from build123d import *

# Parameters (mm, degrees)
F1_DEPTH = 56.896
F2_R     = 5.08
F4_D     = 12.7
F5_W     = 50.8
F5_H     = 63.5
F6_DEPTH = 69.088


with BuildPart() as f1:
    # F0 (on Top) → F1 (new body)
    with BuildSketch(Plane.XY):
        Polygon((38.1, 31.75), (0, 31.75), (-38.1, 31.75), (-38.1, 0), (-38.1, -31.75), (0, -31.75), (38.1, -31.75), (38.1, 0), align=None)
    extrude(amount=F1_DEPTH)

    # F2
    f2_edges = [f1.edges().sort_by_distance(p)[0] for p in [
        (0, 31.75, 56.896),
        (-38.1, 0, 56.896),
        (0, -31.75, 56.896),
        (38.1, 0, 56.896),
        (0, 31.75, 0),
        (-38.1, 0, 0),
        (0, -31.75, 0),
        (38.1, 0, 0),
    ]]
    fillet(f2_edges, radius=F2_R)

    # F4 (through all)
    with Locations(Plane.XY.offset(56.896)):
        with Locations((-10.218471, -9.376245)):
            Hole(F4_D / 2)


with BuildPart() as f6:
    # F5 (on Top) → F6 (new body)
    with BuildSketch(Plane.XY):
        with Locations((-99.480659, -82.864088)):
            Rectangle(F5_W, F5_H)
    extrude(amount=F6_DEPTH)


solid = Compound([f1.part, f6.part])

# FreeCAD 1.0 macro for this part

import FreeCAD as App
import Part
import Sketcher

V = App.Vector
Q = App.Units.Quantity


def edges_at(feature, points):
    """Names of the edges that pass closest to the given points."""
    edges = feature.Shape.Edges
    near = lambda p: min(range(len(edges)), key=lambda i: edges[i].distToShape(Part.Vertex(*p))[0])
    return sorted({f"Edge{near(p) + 1}" for p in points})

doc = App.newDocument("Part")
body = doc.addObject("PartDesign::Body", "Body")

sketch1 = body.newObject("Sketcher::SketchObject", "Sketch")
sketch1.AttachmentSupport = (doc.getObject("XY_Plane"), [""])
sketch1.MapMode = "FlatFace"
sketch1.addGeometry(Part.LineSegment(V(38, 32, 0), V(-38, 32, 0)), False)
sketch1.addGeometry(Part.LineSegment(V(-38, 32, 0), V(-38, -32, 0)), False)
sketch1.addGeometry(Part.LineSegment(V(-38, -32, 0), V(38, -32, 0)), False)
sketch1.addGeometry(Part.LineSegment(V(38, -32, 0), V(38, 32, 0)), False)
sketch1.addConstraint(Sketcher.Constraint("Coincident", 0, 2, 1, 1))
sketch1.addConstraint(Sketcher.Constraint("Coincident", 1, 2, 2, 1))
sketch1.addConstraint(Sketcher.Constraint("Coincident", 2, 2, 3, 1))
sketch1.addConstraint(Sketcher.Constraint("Coincident", 3, 2, 0, 1))
sketch1.addConstraint(Sketcher.Constraint("Horizontal", 0))
sketch1.addConstraint(Sketcher.Constraint("Vertical", 1))
sketch1.addConstraint(Sketcher.Constraint("Horizontal", 2))
sketch1.addConstraint(Sketcher.Constraint("Vertical", 3))
sketch1.addConstraint(Sketcher.Constraint("Symmetric", 0, 2, 2, 2, -1, 1))
sketch1.addConstraint(Sketcher.Constraint("DistanceX", 0, 2, 0, 1, Q("3 in")))
sketch1.addConstraint(Sketcher.Constraint("DistanceY", 1, 2, 1, 1, Q("2.5 in")))
pad1 = body.newObject("PartDesign::Pad", "Pad")
pad1.Profile = sketch1
pad1.Length = Q("2.24 in")
doc.recompute()

fillet = body.newObject("PartDesign::Fillet", "Fillet")
fillet.Base = (pad1, edges_at(pad1, [
    (0, 31.75, 56.896),
    (-38.1, 0, 56.896),
    (0, -31.75, 56.896),
    (38.1, 0, 56.896),
    (0, 31.75, 0),
    (-38.1, 0, 0),
    (0, -31.75, 0),
    (38.1, 0, 0),
]))
fillet.Radius = Q("0.2 in")

sketch2 = body.newObject("Sketcher::SketchObject", "Sketch001")
sketch2.AttachmentSupport = (doc.getObject("XY_Plane"), [""])
sketch2.MapMode = "FlatFace"
sketch2.AttachmentOffset = App.Placement(V(0, 0, 2.24 * 25.4), App.Rotation())
sketch2.addGeometry(Part.Circle(V(-10, -9, 0), V(0, 0, 1), 6), False)
sketch2.addConstraint(Sketcher.Constraint("Diameter", 0, Q("0.5 in")))
sketch2.addConstraint(Sketcher.Constraint("DistanceX", 0, 3, -1, 1, Q("10.218471 mm")))
sketch2.addConstraint(Sketcher.Constraint("DistanceY", 0, 3, -1, 1, Q("9.376245 mm")))
doc.recompute()
hole = body.newObject("PartDesign::Hole", "Hole")
hole.Profile = sketch2
hole.ThreadType = "None"
hole.Diameter = Q("0.5 in")
hole.DepthType = "ThroughAll"
body2 = doc.addObject("PartDesign::Body", "Body001")

sketch3 = body2.newObject("Sketcher::SketchObject", "Sketch002")
sketch3.AttachmentSupport = (doc.getObject("XY_Plane001"), [""])
sketch3.MapMode = "FlatFace"
sketch3.addGeometry(Part.LineSegment(V(-125, -51, 0), V(-125, -115, 0)), False)
sketch3.addGeometry(Part.LineSegment(V(-125, -115, 0), V(-74, -115, 0)), False)
sketch3.addGeometry(Part.LineSegment(V(-74, -115, 0), V(-74, -51, 0)), False)
sketch3.addGeometry(Part.LineSegment(V(-74, -51, 0), V(-125, -51, 0)), False)
sketch3.addConstraint(Sketcher.Constraint("Coincident", 0, 2, 1, 1))
sketch3.addConstraint(Sketcher.Constraint("Coincident", 1, 2, 2, 1))
sketch3.addConstraint(Sketcher.Constraint("Coincident", 2, 2, 3, 1))
sketch3.addConstraint(Sketcher.Constraint("Coincident", 3, 2, 0, 1))
sketch3.addConstraint(Sketcher.Constraint("Vertical", 0))
sketch3.addConstraint(Sketcher.Constraint("Horizontal", 1))
sketch3.addConstraint(Sketcher.Constraint("Vertical", 2))
sketch3.addConstraint(Sketcher.Constraint("Horizontal", 3))
sketch3.addConstraint(Sketcher.Constraint("DistanceX", 1, 1, 1, 2, Q("2 in")))
sketch3.addConstraint(Sketcher.Constraint("DistanceY", 0, 2, 0, 1, Q("2.5 in")))
sketch3.addConstraint(Sketcher.Constraint("DistanceX", 0, 2, -1, 1, Q("124.880659 mm")))
sketch3.addConstraint(Sketcher.Constraint("DistanceY", 2, 2, -1, 1, Q("51.114088 mm")))
pad2 = body2.newObject("PartDesign::Pad", "Pad001")
pad2.Profile = sketch3
pad2.Length = Q("2.72 in")

doc.recompute()
